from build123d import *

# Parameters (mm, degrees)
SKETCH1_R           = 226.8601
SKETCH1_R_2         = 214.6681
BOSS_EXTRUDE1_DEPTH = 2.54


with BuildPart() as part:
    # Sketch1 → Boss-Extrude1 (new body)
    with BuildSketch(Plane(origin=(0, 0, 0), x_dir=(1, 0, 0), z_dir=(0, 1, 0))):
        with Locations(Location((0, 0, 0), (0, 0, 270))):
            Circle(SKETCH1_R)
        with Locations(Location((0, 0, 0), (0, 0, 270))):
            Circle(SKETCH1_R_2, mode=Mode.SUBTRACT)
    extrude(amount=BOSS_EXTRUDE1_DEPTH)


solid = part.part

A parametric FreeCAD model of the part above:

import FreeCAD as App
import Part
import Sketcher
Q = App.Units.Quantity

doc = App.newDocument("Part")
params = doc.addObject("Spreadsheet::Sheet", "Params")
for row, (alias, value) in enumerate([
    ("sketch1_diameter", "17.863 in"),
    ("sketch1_diameter2", "16.903 in"),
    ("pad1_length", "0.1 in"),
], start=1):
    params.set(f"A{row}", alias)
    params.set(f"B{row}", "=" + value)
    params.setAlias(f"B{row}", alias)

body = doc.addObject("PartDesign::Body", "Body")

# Sketch on XZ plane
sketch1 = body.newObject("Sketcher::SketchObject", "Sketch")
sketch1.AttachmentSupport = (doc.getObject("XZ_Plane"), [""])
sketch1.MapMode = "FlatFace"
sketch1.addGeometry(Part.Circle(App.Vector(0, 0, 0), App.Vector(0, 0, 1), 226.8601), False)
sketch1.addGeometry(Part.Circle(App.Vector(0, 0, 0), App.Vector(0, 0, 1), 214.6681), False)
sketch1.addConstraint(Sketcher.Constraint("Coincident", 0, 3, -1, 1))
sketch1.addConstraint(Sketcher.Constraint("Coincident", 1, 3, -1, 1))
sketch1.addConstraint(Sketcher.Constraint("Diameter", 0, Q("17.863 in")))
sketch1.addConstraint(Sketcher.Constraint("Diameter", 1, Q("16.903 in")))
sketch1.setExpression("Constraints[2]", "Params.sketch1_diameter")
sketch1.setExpression("Constraints[3]", "Params.sketch1_diameter2")
pad1 = body.newObject("PartDesign::Pad", "Pad")
pad1.Profile = sketch1
pad1.setExpression("Length", "Params.pad1_length")
pad1.Reversed = True

doc.recompute()
